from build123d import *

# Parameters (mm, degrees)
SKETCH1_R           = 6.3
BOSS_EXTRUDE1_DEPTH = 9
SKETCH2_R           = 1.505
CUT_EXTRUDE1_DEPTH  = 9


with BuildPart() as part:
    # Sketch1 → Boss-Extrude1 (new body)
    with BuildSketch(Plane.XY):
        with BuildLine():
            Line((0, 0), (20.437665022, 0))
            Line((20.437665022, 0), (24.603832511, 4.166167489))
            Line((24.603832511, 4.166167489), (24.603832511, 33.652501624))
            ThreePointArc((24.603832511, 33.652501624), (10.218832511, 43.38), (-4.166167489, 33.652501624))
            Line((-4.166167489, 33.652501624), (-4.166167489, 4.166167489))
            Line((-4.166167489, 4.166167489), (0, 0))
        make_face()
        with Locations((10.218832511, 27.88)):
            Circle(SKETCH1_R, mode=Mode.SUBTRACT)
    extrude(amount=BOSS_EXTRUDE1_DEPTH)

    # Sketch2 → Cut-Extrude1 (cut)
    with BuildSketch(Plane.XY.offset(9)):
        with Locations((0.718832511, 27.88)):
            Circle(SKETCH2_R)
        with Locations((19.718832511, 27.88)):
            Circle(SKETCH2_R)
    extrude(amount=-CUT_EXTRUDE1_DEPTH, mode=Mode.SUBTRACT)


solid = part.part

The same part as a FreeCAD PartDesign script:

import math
import FreeCAD as App
import Part
import Sketcher
Q = App.Units.Quantity

doc = App.newDocument("Part")
body = doc.addObject("PartDesign::Body", "Body")

sketch1 = body.newObject("Sketcher::SketchObject", "Sketch")
sketch1.AttachmentSupport = (doc.getObject("XY_Plane"), [""])
sketch1.MapMode = "FlatFace"
sketch1.addGeometry(Part.LineSegment(App.Vector(0, 0, 0), App.Vector(20.437665, 0, 0)), False)
sketch1.addGeometry(Part.LineSegment(App.Vector(20.437665, 0, 0), App.Vector(24.603833, 4.166167, 0)), False)
sketch1.addGeometry(Part.LineSegment(App.Vector(24.603833, 4.166167, 0), App.Vector(24.603833, 33.652502, 0)), False)
sketch1.addGeometry(Part.ArcOfCircle(Part.Circle(App.Vector(10.218833, 27.88, 0), App.Vector(0, 0, 1), 15.5), math.radians(21.864909), math.radians(158.135091)), False)
sketch1.addGeometry(Part.LineSegment(App.Vector(-4.166167, 33.652502, 0), App.Vector(-4.166167, 4.166167, 0)), False)
sketch1.addGeometry(Part.LineSegment(App.Vector(-4.166167, 4.166167, 0), App.Vector(0, 0, 0)), False)
sketch1.addGeometry(Part.Circle(App.Vector(10.218833, 27.88, 0), App.Vector(0, 0, 1), 6.3), False)
sketch1.addConstraint(Sketcher.Constraint("Coincident", 0, 2, 1, 1))
sketch1.addConstraint(Sketcher.Constraint("Coincident", 1, 2, 2, 1))
sketch1.addConstraint(Sketcher.Constraint("Coincident", 2, 2, 3, 1))
sketch1.addConstraint(Sketcher.Constraint("Coincident", 3, 2, 4, 1))
sketch1.addConstraint(Sketcher.Constraint("Coincident", 4, 2, 5, 1))
sketch1.addConstraint(Sketcher.Constraint("Coincident", 5, 2, 0, 1))
sketch1.addConstraint(Sketcher.Constraint("Horizontal", 0))
sketch1.addConstraint(Sketcher.Constraint("Vertical", 2))
sketch1.addConstraint(Sketcher.Constraint("Vertical", 4))
sketch1.addConstraint(Sketcher.Constraint("Coincident", 5, 2, -1, 1))
sketch1.addConstraint(Sketcher.Constraint("Coincident", 6, 3, 3, 3))
sketch1.addConstraint(Sketcher.Constraint("Perpendicular", 1, 5))
sketch1.addConstraint(Sketcher.Constraint("Horizontal", 2, 2, 3, 2))
sketch1.addConstraint(Sketcher.Constraint("Horizontal", 1, 2, 4, 2))
sketch1.addConstraint(Sketcher.Constraint("Equal", 1, 5))
sketch1.addConstraint(Sketcher.Constraint("Diameter", 6, Q("12.6 mm")))
sketch1.addConstraint(Sketcher.Constraint("Radius", 3, Q("15.5 mm")))
sketch1.addConstraint(Sketcher.Constraint("DistanceY", -1, 1, 3, 3, Q("27.88 mm")))
sketch1.addConstraint(Sketcher.Constraint("DistanceX", 3, 2, 2, 2, Q("28.77 mm")))
sketch1.addConstraint(Sketcher.Constraint("Distance", 1, Q("5.891851 mm")))
pad1 = body.newObject("PartDesign::Pad", "Pad")
pad1.Profile = sketch1
pad1.Length = 9

sketch2 = body.newObject("Sketcher::SketchObject", "Sketch001")
sketch2.AttachmentSupport = (doc.getObject("XY_Plane"), [""])
sketch2.MapMode = "FlatFace"
sketch2.AttachmentOffset = App.Placement(App.Vector(0, 0, 9), App.Rotation())
sketch2.addGeometry(Part.Circle(App.Vector(0.718833, 27.88, 0), App.Vector(0, 0, 1), 1.505), False)
sketch2.addGeometry(Part.Circle(App.Vector(19.718833, 27.88, 0), App.Vector(0, 0, 1), 1.505), False)
sketch2.addConstraint(Sketcher.Constraint("Equal", 0, 1))
sketch2.addConstraint(Sketcher.Constraint("Horizontal", 0, 3, 1, 3))
sketch2.addConstraint(Sketcher.Constraint("Diameter", 0, Q("3.01 mm")))
sketch2.addConstraint(Sketcher.Constraint("DistanceX", 0, 3, 1, 3, Q("19 mm")))
sketch2.addConstraint(Sketcher.Constraint("DistanceY", -1, 1, 0, 3, Q("27.88 mm")))
sketch2.addConstraint(Sketcher.Constraint("DistanceX", -1, 1, 0, 3, Q("0.718833 mm")))
pocket1 = body.newObject("PartDesign::Pocket", "Pocket")
pocket1.Profile = sketch2
pocket1.Length = 9

doc.recompute()
